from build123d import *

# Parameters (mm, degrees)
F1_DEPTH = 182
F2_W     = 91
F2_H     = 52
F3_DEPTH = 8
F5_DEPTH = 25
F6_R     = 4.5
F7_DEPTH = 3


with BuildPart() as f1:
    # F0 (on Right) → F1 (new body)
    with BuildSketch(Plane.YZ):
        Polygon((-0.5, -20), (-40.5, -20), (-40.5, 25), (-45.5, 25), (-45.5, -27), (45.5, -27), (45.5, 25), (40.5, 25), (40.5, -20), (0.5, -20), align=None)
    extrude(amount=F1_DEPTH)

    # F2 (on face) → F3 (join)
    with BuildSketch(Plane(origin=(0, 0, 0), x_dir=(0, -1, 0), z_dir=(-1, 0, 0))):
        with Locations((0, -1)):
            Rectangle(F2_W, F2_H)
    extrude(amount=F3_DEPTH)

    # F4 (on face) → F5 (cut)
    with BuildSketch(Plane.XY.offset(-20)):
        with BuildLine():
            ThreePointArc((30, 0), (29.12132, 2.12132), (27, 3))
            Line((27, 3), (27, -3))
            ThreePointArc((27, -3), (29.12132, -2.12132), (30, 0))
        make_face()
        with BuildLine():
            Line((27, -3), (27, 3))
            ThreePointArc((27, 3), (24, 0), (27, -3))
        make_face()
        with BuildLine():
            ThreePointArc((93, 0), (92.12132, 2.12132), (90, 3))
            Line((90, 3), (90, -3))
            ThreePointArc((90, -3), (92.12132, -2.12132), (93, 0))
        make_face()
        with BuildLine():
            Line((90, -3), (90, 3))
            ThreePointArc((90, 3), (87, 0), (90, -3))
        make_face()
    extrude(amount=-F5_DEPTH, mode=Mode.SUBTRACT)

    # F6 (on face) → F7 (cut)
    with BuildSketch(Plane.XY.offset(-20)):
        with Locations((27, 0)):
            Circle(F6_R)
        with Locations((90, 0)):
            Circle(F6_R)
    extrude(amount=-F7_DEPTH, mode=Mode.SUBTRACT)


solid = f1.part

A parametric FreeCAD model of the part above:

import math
import FreeCAD as App
import Part
import Sketcher
Q = App.Units.Quantity

doc = App.newDocument("Part")
body = doc.addObject("PartDesign::Body", "Body")

sketch1 = body.newObject("Sketcher::SketchObject", "Sketch")
sketch1.AttachmentSupport = (doc.getObject("YZ_Plane"), [""])
sketch1.MapMode = "FlatFace"
sketch1.addGeometry(Part.LineSegment(App.Vector(-40, -20, 0), App.Vector(-40, 25, 0)), False)
sketch1.addGeometry(Part.LineSegment(App.Vector(-40, 25, 0), App.Vector(-46, 25, 0)), False)
sketch1.addGeometry(Part.LineSegment(App.Vector(-46, 25, 0), App.Vector(-46, -27, 0)), False)
sketch1.addGeometry(Part.LineSegment(App.Vector(-46, -27, 0), App.Vector(46, -27, 0)), False)
sketch1.addGeometry(Part.LineSegment(App.Vector(46, -27, 0), App.Vector(46, 25, 0)), False)
sketch1.addGeometry(Part.LineSegment(App.Vector(46, 25, 0), App.Vector(40, 25, 0)), False)
sketch1.addGeometry(Part.LineSegment(App.Vector(40, 25, 0), App.Vector(40, -20, 0)), False)
sketch1.addGeometry(Part.LineSegment(App.Vector(40, -20, 0), App.Vector(-40, -20, 0)), False)
sketch1.addConstraint(Sketcher.Constraint("Coincident", 0, 2, 1, 1))
sketch1.addConstraint(Sketcher.Constraint("Coincident", 1, 2, 2, 1))
sketch1.addConstraint(Sketcher.Constraint("Coincident", 2, 2, 3, 1))
sketch1.addConstraint(Sketcher.Constraint("Coincident", 3, 2, 4, 1))
sketch1.addConstraint(Sketcher.Constraint("Coincident", 4, 2, 5, 1))
sketch1.addConstraint(Sketcher.Constraint("Coincident", 5, 2, 6, 1))
sketch1.addConstraint(Sketcher.Constraint("Coincident", 6, 2, 7, 1))
sketch1.addConstraint(Sketcher.Constraint("Coincident", 7, 2, 0, 1))
sketch1.addConstraint(Sketcher.Constraint("Vertical", 0))
sketch1.addConstraint(Sketcher.Constraint("Horizontal", 1))
sketch1.addConstraint(Sketcher.Constraint("Vertical", 2))
sketch1.addConstraint(Sketcher.Constraint("Horizontal", 3))
sketch1.addConstraint(Sketcher.Constraint("Vertical", 4))
sketch1.addConstraint(Sketcher.Constraint("Horizontal", 5))
sketch1.addConstraint(Sketcher.Constraint("Vertical", 6))
sketch1.addConstraint(Sketcher.Constraint("Horizontal", 7))
sketch1.addConstraint(Sketcher.Constraint("Symmetric", 1, 2, 4, 2, -2))
sketch1.addConstraint(Sketcher.Constraint("Equal", 1, 5))
sketch1.addConstraint(Sketcher.Constraint("DistanceX", 1, 2, 1, 1, Q("5 mm")))
sketch1.addConstraint(Sketcher.Constraint("DistanceX", 3, 1, 3, 2, Q("91 mm")))
sketch1.addConstraint(Sketcher.Constraint("DistanceY", 0, 1, 0, 2, Q("45 mm")))
sketch1.addConstraint(Sketcher.Constraint("DistanceY", 2, 2, 2, 1, Q("52 mm")))
sketch1.addConstraint(Sketcher.Constraint("DistanceY", -1, 1, 0, 2, Q("25 mm")))
pad1 = body.newObject("PartDesign::Pad", "Pad")
pad1.Profile = sketch1
pad1.Length = 182

sketch2 = body.newObject("Sketcher::SketchObject", "Sketch001")
sketch2.AttachmentSupport = (doc.getObject("YZ_Plane"), [""])
sketch2.MapMode = "FlatFace"
sketch2.addGeometry(Part.LineSegment(App.Vector(46, 25, 0), App.Vector(46, -27, 0)), False)
sketch2.addGeometry(Part.LineSegment(App.Vector(46, -27, 0), App.Vector(-46, -27, 0)), False)
sketch2.addGeometry(Part.LineSegment(App.Vector(-46, -27, 0), App.Vector(-46, 25, 0)), False)
sketch2.addGeometry(Part.LineSegment(App.Vector(-46, 25, 0), App.Vector(46, 25, 0)), False)
sketch2.addConstraint(Sketcher.Constraint("Coincident", 0, 2, 1, 1))
sketch2.addConstraint(Sketcher.Constraint("Coincident", 1, 2, 2, 1))
sketch2.addConstraint(Sketcher.Constraint("Coincident", 2, 2, 3, 1))
sketch2.addConstraint(Sketcher.Constraint("Coincident", 3, 2, 0, 1))
sketch2.addConstraint(Sketcher.Constraint("Vertical", 0))
sketch2.addConstraint(Sketcher.Constraint("Horizontal", 1))
sketch2.addConstraint(Sketcher.Constraint("Vertical", 2))
sketch2.addConstraint(Sketcher.Constraint("Horizontal", 3))
sketch2.addConstraint(Sketcher.Constraint("DistanceX", 1, 2, 1, 1, Q("91 mm")))
sketch2.addConstraint(Sketcher.Constraint("DistanceY", 0, 2, 0, 1, Q("52 mm")))
sketch2.addConstraint(Sketcher.Constraint("DistanceY", 0, 2, -1, 1, Q("27 mm")))
sketch2.addConstraint(Sketcher.Constraint("DistanceX", -1, 1, 0, 2, Q("45.5 mm")))
pad2 = body.newObject("PartDesign::Pad", "Pad001")
pad2.Profile = sketch2
pad2.Length = 8
pad2.Reversed = True

sketch3 = body.newObject("Sketcher::SketchObject", "Sketch002")
sketch3.AttachmentSupport = (doc.getObject("XY_Plane"), [""])
sketch3.MapMode = "FlatFace"
sketch3.AttachmentOffset = App.Placement(App.Vector(0, 0, -20), App.Rotation())
sketch3.addGeometry(Part.ArcOfCircle(Part.Circle(App.Vector(27, 0, 0), App.Vector(0, 0, 1), 3), math.radians(0), math.radians(90)), False)
sketch3.addGeometry(Part.ArcOfCircle(Part.Circle(App.Vector(27, 0, 0), App.Vector(0, 0, 1), 3), math.radians(90), math.radians(270)), False)
sketch3.addGeometry(Part.ArcOfCircle(Part.Circle(App.Vector(27, 0, 0), App.Vector(0, 0, 1), 3), math.radians(-90), math.radians(0)), False)
sketch3.addGeometry(Part.ArcOfCircle(Part.Circle(App.Vector(90, 0, 0), App.Vector(0, 0, 1), 3), math.radians(0), math.radians(90)), False)
sketch3.addGeometry(Part.ArcOfCircle(Part.Circle(App.Vector(90, 0, 0), App.Vector(0, 0, 1), 3), math.radians(90), math.radians(270)), False)
sketch3.addGeometry(Part.ArcOfCircle(Part.Circle(App.Vector(90, 0, 0), App.Vector(0, 0, 1), 3), math.radians(-90), math.radians(0)), False)
sketch3.addConstraint(Sketcher.Constraint("Tangent", 0, 2, 1, 1))
sketch3.addConstraint(Sketcher.Constraint("Tangent", 1, 2, 2, 1))
sketch3.addConstraint(Sketcher.Constraint("Tangent", 2, 2, 0, 1))
sketch3.addConstraint(Sketcher.Constraint("Tangent", 3, 2, 4, 1))
sketch3.addConstraint(Sketcher.Constraint("Tangent", 4, 2, 5, 1))
sketch3.addConstraint(Sketcher.Constraint("Tangent", 5, 2, 3, 1))
sketch3.addConstraint(Sketcher.Constraint("Equal", 2, 3))
sketch3.addConstraint(Sketcher.Constraint("Symmetric", 0, 2, 1, 2, -1))
sketch3.addConstraint(Sketcher.Constraint("Symmetric", 3, 2, 4, 2, -1))
sketch3.addConstraint(Sketcher.Constraint("PointOnObject", 2, 2, -1))
sketch3.addConstraint(Sketcher.Constraint("PointOnObject", 5, 2, -1))
sketch3.addConstraint(Sketcher.Constraint("Vertical", 2, 3, 0, 2))
sketch3.addConstraint(Sketcher.Constraint("Vertical", 5, 3, 3, 2))
sketch3.addConstraint(Sketcher.Constraint("Radius", 0, Q("3.000001 mm")))
sketch3.addConstraint(Sketcher.Constraint("DistanceX", -1, 1, 0, 3, Q("26.999999 mm")))
sketch3.addConstraint(Sketcher.Constraint("DistanceX", -1, 1, 3, 3, Q("89.999999 mm")))
pocket1 = body.newObject("PartDesign::Pocket", "Pocket")
pocket1.Profile = sketch3
pocket1.Length = 25

sketch4 = body.newObject("Sketcher::SketchObject", "Sketch003")
sketch4.AttachmentSupport = (doc.getObject("XY_Plane"), [""])
sketch4.MapMode = "FlatFace"
sketch4.AttachmentOffset = App.Placement(App.Vector(0, 0, -20), App.Rotation())
sketch4.addGeometry(Part.Circle(App.Vector(27, 0, 0), App.Vector(0, 0, 1), 4.5), False)
sketch4.addGeometry(Part.Circle(App.Vector(90, 0, 0), App.Vector(0, 0, 1), 4.5), False)
sketch4.addConstraint(Sketcher.Constraint("Equal", 0, 1))
sketch4.addConstraint(Sketcher.Constraint("PointOnObject", 0, 3, -1))
sketch4.addConstraint(Sketcher.Constraint("PointOnObject", 1, 3, -1))
sketch4.addConstraint(Sketcher.Constraint("Diameter", 0, Q("9 mm")))
sketch4.addConstraint(Sketcher.Constraint("DistanceX", -1, 1, 0, 3, Q("27 mm")))
sketch4.addConstraint(Sketcher.Constraint("DistanceX", -1, 1, 1, 3, Q("90 mm")))
pocket2 = body.newObject("PartDesign::Pocket", "Pocket001")
pocket2.Profile = sketch4
pocket2.Length = 3

doc.recompute()
